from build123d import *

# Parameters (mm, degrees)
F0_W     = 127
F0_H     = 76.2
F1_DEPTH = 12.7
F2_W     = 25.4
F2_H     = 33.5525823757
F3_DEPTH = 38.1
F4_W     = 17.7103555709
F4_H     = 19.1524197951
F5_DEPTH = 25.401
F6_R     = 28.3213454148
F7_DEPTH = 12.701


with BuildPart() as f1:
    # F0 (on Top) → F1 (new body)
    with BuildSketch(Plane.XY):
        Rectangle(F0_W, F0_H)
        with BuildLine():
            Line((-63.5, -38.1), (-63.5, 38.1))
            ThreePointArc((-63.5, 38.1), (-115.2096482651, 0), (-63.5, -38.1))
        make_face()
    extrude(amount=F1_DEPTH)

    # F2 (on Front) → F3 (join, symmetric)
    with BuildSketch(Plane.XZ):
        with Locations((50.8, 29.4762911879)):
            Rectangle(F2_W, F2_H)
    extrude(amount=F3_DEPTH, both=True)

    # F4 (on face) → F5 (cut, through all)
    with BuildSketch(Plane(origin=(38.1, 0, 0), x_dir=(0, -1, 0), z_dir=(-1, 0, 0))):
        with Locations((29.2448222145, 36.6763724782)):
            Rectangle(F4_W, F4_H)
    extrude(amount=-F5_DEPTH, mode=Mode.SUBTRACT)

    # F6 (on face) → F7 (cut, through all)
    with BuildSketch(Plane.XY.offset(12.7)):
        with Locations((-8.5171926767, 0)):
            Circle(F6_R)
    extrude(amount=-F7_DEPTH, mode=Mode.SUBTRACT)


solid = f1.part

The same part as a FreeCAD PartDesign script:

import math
import FreeCAD as App
import Part
import Sketcher
Q = App.Units.Quantity


def add_polygon(sketch, points):
    """Adds a closed chain of lines whose ends are joined by coincident constraints."""
    first, n = sketch.GeometryCount, len(points)
    for a, b in zip(points, points[1:] + points[:1]):
        sketch.addGeometry(Part.LineSegment(App.Vector(*a, 0), App.Vector(*b, 0)), False)
    for i in range(n):
        sketch.addConstraint(Sketcher.Constraint("Coincident", first + i, 2, first + (i + 1) % n, 1))

doc = App.newDocument("Part")
body = doc.addObject("PartDesign::Body", "Body")

# Sketch on XY plane
sketch1 = body.newObject("Sketcher::SketchObject", "Sketch")
sketch1.AttachmentSupport = (doc.getObject("XY_Plane"), [""])
sketch1.MapMode = "FlatFace"
sketch1.addGeometry([
    Part.LineSegment(App.Vector(-64, -38, 0), App.Vector(64, -38, 0)),
    Part.LineSegment(App.Vector(64, -38, 0), App.Vector(64, 38, 0)),
    Part.LineSegment(App.Vector(64, 38, 0), App.Vector(-64, 38, 0)),
    Part.ArcOfCircle(Part.Circle(App.Vector(-75, 0, 0), App.Vector(0, 0, 1), 40), math.radians(73), math.radians(287)),
], False)
sketch1.addConstraint([
    Sketcher.Constraint("Coincident", 0, 2, 1, 1),
    Sketcher.Constraint("Coincident", 1, 2, 2, 1),
    Sketcher.Constraint("Coincident", 2, 2, 3, 1),
    Sketcher.Constraint("Coincident", 3, 2, 0, 1),
    Sketcher.Constraint("Horizontal", 0),
    Sketcher.Constraint("Vertical", 1),
    Sketcher.Constraint("Horizontal", 2),
    Sketcher.Constraint("Symmetric", 0, 2, 2, 2, -1, 1),
    Sketcher.Constraint("PointOnObject", 3, 3, -1),
    Sketcher.Constraint("DistanceX", 0, 1, 0, 2, Q("5 in")),
    Sketcher.Constraint("DistanceY", 1, 1, 1, 2, Q("3 in")),
    Sketcher.Constraint("Radius", 3, 39.890986),
])
pad1 = body.newObject("PartDesign::Pad", "Pad")
pad1.Profile = sketch1
pad1.Length = Q("0.5 in")

# Sketch on XZ plane
sketch2 = body.newObject("Sketcher::SketchObject", "Sketch001")
sketch2.AttachmentSupport = (doc.getObject("XZ_Plane"), [""])
sketch2.MapMode = "FlatFace"
add_polygon(sketch2, [(38, 46), (38, 13), (64, 13), (64, 46)])  # lines 0-3
sketch2.addConstraint([
    Sketcher.Constraint("Vertical", 0),
    Sketcher.Constraint("Horizontal", 1),
    Sketcher.Constraint("Vertical", 2),
    Sketcher.Constraint("Horizontal", 3),
    Sketcher.Constraint("DistanceX", 1, 1, 1, 2, Q("1 in")),
    Sketcher.Constraint("DistanceX", -1, 1, 0, 2, Q("1.5 in")),
    Sketcher.Constraint("DistanceY", -1, 1, 0, 2, Q("0.5 in")),
    Sketcher.Constraint("DistanceY", 0, 2, 0, 1, 33.552582),
])
pad2 = body.newObject("PartDesign::Pad", "Pad001")
pad2.Profile = sketch2
pad2.Length = Q("3 in")
pad2.Midplane = True

# Sketch on YZ plane
sketch3 = body.newObject("Sketcher::SketchObject", "Sketch002")
sketch3.AttachmentSupport = (doc.getObject("YZ_Plane"), [""])
sketch3.MapMode = "FlatFace"
sketch3.AttachmentOffset = App.Placement(App.Vector(0, 0, 1.5 * 25.4), App.Rotation())
add_polygon(sketch3, [(-20, 46), (-20, 27), (-38, 27), (-38, 46)])  # lines 0-3
sketch3.addConstraint([
    Sketcher.Constraint("Vertical", 0),
    Sketcher.Constraint("Horizontal", 1),
    Sketcher.Constraint("Vertical", 2),
    Sketcher.Constraint("Horizontal", 3),
    Sketcher.Constraint("DistanceX", 1, 2, -1, 1, Q("1.5 in")),
    Sketcher.Constraint("DistanceY", 0, 2, 0, 1, 19.15242),
    Sketcher.Constraint("DistanceX", 1, 2, 1, 1, 17.710356),
    Sketcher.Constraint("DistanceY", -1, 1, 0, 2, 27.100163),
])
pocket1 = body.newObject("PartDesign::Pocket", "Pocket")
pocket1.Profile = sketch3
pocket1.Type = "ThroughAll"
pocket1.Reversed = True

# Sketch on XY plane
sketch4 = body.newObject("Sketcher::SketchObject", "Sketch003")
sketch4.AttachmentSupport = (doc.getObject("XY_Plane"), [""])
sketch4.MapMode = "FlatFace"
sketch4.AttachmentOffset = App.Placement(App.Vector(0, 0, 0.5 * 25.4), App.Rotation())
sketch4.addGeometry(Part.Circle(App.Vector(-9, 0, 0), App.Vector(0, 0, 1), 28), False)
sketch4.addConstraint([
    Sketcher.Constraint("PointOnObject", 0, 3, -1),
    Sketcher.Constraint("Diameter", 0, 56.642691),
    Sketcher.Constraint("DistanceX", 0, 3, -1, 1, 8.517193),
])
pocket2 = body.newObject("PartDesign::Pocket", "Pocket001")
pocket2.Profile = sketch4
pocket2.Type = "ThroughAll"

doc.recompute()
